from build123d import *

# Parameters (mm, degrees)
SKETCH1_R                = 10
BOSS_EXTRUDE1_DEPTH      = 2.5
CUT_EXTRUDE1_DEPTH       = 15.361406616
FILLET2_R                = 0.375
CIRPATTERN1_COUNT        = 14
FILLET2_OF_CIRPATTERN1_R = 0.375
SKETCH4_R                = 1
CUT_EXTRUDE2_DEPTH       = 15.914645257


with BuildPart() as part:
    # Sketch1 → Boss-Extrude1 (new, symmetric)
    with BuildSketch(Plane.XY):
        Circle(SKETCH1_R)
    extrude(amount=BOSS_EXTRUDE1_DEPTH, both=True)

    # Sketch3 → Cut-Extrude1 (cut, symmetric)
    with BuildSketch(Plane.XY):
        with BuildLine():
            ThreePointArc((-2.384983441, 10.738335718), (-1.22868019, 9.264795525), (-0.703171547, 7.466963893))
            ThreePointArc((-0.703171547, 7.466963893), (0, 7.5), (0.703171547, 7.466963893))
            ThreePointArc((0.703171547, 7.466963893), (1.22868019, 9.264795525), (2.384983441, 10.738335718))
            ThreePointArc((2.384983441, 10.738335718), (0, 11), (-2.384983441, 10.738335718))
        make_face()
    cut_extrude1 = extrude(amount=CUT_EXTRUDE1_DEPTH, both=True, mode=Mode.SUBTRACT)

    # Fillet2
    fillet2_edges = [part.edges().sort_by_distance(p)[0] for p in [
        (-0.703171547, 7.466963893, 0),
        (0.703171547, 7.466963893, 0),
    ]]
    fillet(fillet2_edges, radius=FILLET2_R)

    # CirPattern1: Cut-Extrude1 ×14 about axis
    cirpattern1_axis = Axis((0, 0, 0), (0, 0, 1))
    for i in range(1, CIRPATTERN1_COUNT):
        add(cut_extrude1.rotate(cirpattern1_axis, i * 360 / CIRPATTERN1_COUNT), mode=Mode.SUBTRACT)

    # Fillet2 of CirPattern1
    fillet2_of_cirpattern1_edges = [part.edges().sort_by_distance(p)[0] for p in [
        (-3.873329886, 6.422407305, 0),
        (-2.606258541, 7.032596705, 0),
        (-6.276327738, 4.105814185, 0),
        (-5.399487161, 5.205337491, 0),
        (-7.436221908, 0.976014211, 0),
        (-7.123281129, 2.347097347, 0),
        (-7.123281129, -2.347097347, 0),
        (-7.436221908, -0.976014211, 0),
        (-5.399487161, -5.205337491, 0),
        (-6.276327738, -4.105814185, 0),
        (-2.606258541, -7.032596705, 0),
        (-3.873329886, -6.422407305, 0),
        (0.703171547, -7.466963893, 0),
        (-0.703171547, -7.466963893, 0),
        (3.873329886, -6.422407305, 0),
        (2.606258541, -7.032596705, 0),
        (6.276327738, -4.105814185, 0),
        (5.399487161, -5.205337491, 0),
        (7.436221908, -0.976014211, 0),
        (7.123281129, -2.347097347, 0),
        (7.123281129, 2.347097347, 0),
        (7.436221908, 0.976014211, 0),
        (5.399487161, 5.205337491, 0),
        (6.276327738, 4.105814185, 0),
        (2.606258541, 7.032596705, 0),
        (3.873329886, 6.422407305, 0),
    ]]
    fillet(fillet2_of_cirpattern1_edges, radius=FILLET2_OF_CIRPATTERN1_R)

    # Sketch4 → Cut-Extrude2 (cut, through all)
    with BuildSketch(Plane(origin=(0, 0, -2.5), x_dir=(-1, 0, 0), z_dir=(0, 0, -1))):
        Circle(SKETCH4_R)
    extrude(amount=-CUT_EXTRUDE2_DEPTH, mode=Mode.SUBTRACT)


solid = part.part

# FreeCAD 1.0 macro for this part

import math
import FreeCAD as App
import Part
import Sketcher
from FreeCAD import Vector
Q = App.Units.Quantity


def edges_at(feature, points):
    """Names of the edges that pass closest to the given points."""
    edges = feature.Shape.Edges
    near = lambda p: min(range(len(edges)), key=lambda i: edges[i].distToShape(Part.Vertex(*p))[0])
    return sorted({f"Edge{near(p) + 1}" for p in points})

doc = App.newDocument("Part")
body = doc.addObject("PartDesign::Body", "Body")

# Sketch on XY plane
sketch1 = body.newObject("Sketcher::SketchObject", "Sketch")
sketch1.AttachmentSupport = (doc.getObject("XY_Plane"), [""])
sketch1.MapMode = "FlatFace"
sketch1.addGeometry(Part.Circle(Vector(0, 0, 0), Vector(0, 0, 1), 10), False)
sketch1.addConstraint([
    Sketcher.Constraint("Coincident", 0, 3, -1, 1),
    Sketcher.Constraint("Diameter", 0, Q("20 mm")),
])
pad1 = body.newObject("PartDesign::Pad", "Pad")
pad1.Profile = sketch1
pad1.Length = 5
pad1.Midplane = True

# Sketch on XY plane
sketch2 = body.newObject("Sketcher::SketchObject", "Sketch001")
sketch2.AttachmentSupport = (doc.getObject("XY_Plane"), [""])
sketch2.MapMode = "FlatFace"
sketch2.addGeometry([
    Part.ArcOfCircle(Part.Circle(Vector(-5.6, 7, 0), Vector(0, 0, 1), 4.9), math.radians(5), math.radians(49)),
    Part.ArcOfCircle(Part.Circle(Vector(0, 0, 0), Vector(0, 0, 1), 7.5), math.radians(84.62), math.radians(95.38)),
    Part.ArcOfCircle(Part.Circle(Vector(5.6, 7, 0), Vector(0, 0, 1), 4.9), math.radians(131), math.radians(175)),
    Part.ArcOfCircle(Part.Circle(Vector(0, 0, 0), Vector(0, 0, 1), 11), math.radians(77), math.radians(103)),
], False)
sketch2.addConstraint([
    Sketcher.Constraint("Coincident", 0, 1, 1, 2),
    Sketcher.Constraint("Coincident", 1, 1, 2, 2),
    Sketcher.Constraint("Coincident", 2, 1, 3, 1),
    Sketcher.Constraint("Coincident", 3, 2, 0, 2),
    Sketcher.Constraint("Coincident", 1, 3, -1, 1),
    Sketcher.Constraint("Coincident", 3, 3, -1, 1),
    Sketcher.Constraint("Equal", 0, 2),
    Sketcher.Constraint("Symmetric", 0, 3, 2, 3, -2),
    Sketcher.Constraint("Radius", 3, Q("11 mm")),
    Sketcher.Constraint("Radius", 1, Q("7.5 mm")),
    Sketcher.Constraint("Radius", 0, Q("4.946421 mm")),
    Sketcher.Constraint("DistanceX", 0, 1, -1, 1, Q("0.703172 mm")),
    Sketcher.Constraint("DistanceX", 0, 3, 2, 3, Q("11.255609 mm")),
])
pocket1 = body.newObject("PartDesign::Pocket", "Pocket")
pocket1.Profile = sketch2
pocket1.Length = 30.722813
pocket1.Midplane = True
doc.recompute()

fillet = body.newObject("PartDesign::Fillet", "Fillet")
fillet.Base = (pocket1, edges_at(pocket1, [(-0.703, 7.467, 0), (0.703, 7.467, 0)]))
fillet.Radius = 0.375
doc.recompute()

polarpattern = body.newObject("PartDesign::PolarPattern", "PolarPattern")
polarpattern.Originals = [pocket1]
polarpattern.Axis = (doc.getObject("Z_Axis"), [""])
polarpattern.Angle = 360
polarpattern.Occurrences = 14
body.Tip = polarpattern
doc.recompute()

fillet2 = body.newObject("PartDesign::Fillet", "Fillet001")
fillet2.Base = (polarpattern, edges_at(polarpattern, [
    (-3.873, 6.422, 0),
    (-2.606, 7.033, 0),
    (-6.276, 4.106, 0),
    (-5.399, 5.205, 0),
    (-7.436, 0.976, 0),
    (-7.123, 2.347, 0),
    (-7.123, -2.347, 0),
    (-7.436, -0.976, 0),
    (-5.399, -5.205, 0),
    (-6.276, -4.106, 0),
    (-2.606, -7.033, 0),
    (-3.873, -6.422, 0),
    (0.703, -7.467, 0),
    (-0.703, -7.467, 0),
    (3.873, -6.422, 0),
    (2.606, -7.033, 0),
    (6.276, -4.106, 0),
    (5.399, -5.205, 0),
    (7.436, -0.976, 0),
    (7.123, -2.347, 0),
    (7.123, 2.347, 0),
    (7.436, 0.976, 0),
    (5.399, 5.205, 0),
    (6.276, 4.106, 0),
    (2.606, 7.033, 0),
    (3.873, 6.422, 0),
]))
fillet2.Radius = 0.375

# Sketch on XY plane
sketch3 = body.newObject("Sketcher::SketchObject", "Sketch002")
sketch3.AttachmentSupport = (doc.getObject("XY_Plane"), [""])
sketch3.MapMode = "FlatFace"
sketch3.AttachmentOffset = App.Placement(Vector(0, 0, -2.5), App.Rotation())
sketch3.addGeometry(Part.Circle(Vector(0, 0, 0), Vector(0, 0, 1), 1), False)
sketch3.addConstraint([
    Sketcher.Constraint("Coincident", 0, 3, -1, 1),
    Sketcher.Constraint("Diameter", 0, Q("2 mm")),
])
pocket2 = body.newObject("PartDesign::Pocket", "Pocket001")
pocket2.Profile = sketch3
pocket2.Type = "ThroughAll"
pocket2.Reversed = True

doc.recompute()
